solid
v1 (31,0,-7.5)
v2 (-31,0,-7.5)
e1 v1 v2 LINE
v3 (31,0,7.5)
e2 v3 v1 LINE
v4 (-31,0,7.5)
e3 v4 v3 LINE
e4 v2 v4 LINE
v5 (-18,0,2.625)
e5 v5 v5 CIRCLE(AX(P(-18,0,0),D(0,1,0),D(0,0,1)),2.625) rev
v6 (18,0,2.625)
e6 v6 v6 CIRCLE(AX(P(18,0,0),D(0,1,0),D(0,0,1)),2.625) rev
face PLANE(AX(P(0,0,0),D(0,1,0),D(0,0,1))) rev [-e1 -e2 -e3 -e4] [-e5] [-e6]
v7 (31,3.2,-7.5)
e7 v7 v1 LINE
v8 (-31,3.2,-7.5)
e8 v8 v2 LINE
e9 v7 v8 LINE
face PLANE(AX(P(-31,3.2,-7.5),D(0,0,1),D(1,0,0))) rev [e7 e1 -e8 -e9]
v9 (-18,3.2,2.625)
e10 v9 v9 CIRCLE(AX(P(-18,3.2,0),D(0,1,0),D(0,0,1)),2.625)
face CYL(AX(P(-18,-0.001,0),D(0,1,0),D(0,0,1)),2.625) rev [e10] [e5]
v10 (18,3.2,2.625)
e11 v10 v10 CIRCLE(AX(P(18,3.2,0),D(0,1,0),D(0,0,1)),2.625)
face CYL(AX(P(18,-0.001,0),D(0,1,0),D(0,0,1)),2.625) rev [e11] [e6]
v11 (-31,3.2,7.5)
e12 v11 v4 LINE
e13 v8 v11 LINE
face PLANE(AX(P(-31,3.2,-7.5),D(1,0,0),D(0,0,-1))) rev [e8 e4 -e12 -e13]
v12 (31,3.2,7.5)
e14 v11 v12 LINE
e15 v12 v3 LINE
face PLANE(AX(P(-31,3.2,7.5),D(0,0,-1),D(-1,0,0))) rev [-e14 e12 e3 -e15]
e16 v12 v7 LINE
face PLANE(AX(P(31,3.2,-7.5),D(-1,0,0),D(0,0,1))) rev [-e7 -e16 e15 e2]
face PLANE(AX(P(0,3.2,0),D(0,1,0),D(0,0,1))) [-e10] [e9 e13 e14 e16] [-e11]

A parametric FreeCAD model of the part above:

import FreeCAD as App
import Part
import Sketcher
from FreeCAD import Vector

doc = App.newDocument("Part")
body = doc.addObject("PartDesign::Body", "Body")

# Sketch on XZ plane
sketch1 = body.newObject("Sketcher::SketchObject", "Sketch")
sketch1.AttachmentSupport = (doc.getObject("XZ_Plane"), [""])
sketch1.MapMode = "FlatFace"
sketch1.addGeometry(Part.LineSegment(Vector(-31, -8, 0), Vector(-31, 8, 0)), False)
sketch1.addGeometry(Part.LineSegment(Vector(-31, 8, 0), Vector(31, 8, 0)), False)
sketch1.addGeometry(Part.LineSegment(Vector(31, 8, 0), Vector(31, -8, 0)), False)
sketch1.addGeometry(Part.LineSegment(Vector(31, -8, 0), Vector(-31, -8, 0)), False)
sketch1.addConstraint(Sketcher.Constraint("Coincident", 0, 2, 1, 1))
sketch1.addConstraint(Sketcher.Constraint("Coincident", 1, 2, 2, 1))
sketch1.addConstraint(Sketcher.Constraint("Coincident", 2, 2, 3, 1))
sketch1.addConstraint(Sketcher.Constraint("Coincident", 3, 2, 0, 1))
sketch1.addConstraint(Sketcher.Constraint("Vertical", 0))
sketch1.addConstraint(Sketcher.Constraint("Horizontal", 1))
sketch1.addConstraint(Sketcher.Constraint("Vertical", 2))
sketch1.addConstraint(Sketcher.Constraint("Horizontal", 3))
sketch1.addConstraint(Sketcher.Constraint("Symmetric", 0, 2, 2, 2, -1, 1))
sketch1.addConstraint(Sketcher.Constraint("DistanceX", 1, 1, 1, 2, 62.0))
sketch1.addConstraint(Sketcher.Constraint("DistanceY", 0, 1, 0, 2, 15.0))
pad1 = body.newObject("PartDesign::Pad", "Pad")
pad1.Profile = sketch1
pad1.Length = 3.2
pad1.Reversed = True

# Sketch on XZ plane
sketch2 = body.newObject("Sketcher::SketchObject", "Sketch001")
sketch2.AttachmentSupport = (doc.getObject("XZ_Plane"), [""])
sketch2.MapMode = "FlatFace"
sketch2.AttachmentOffset = App.Placement(Vector(0, 0, -3.2), App.Rotation())
sketch2.addGeometry(Part.Circle(Vector(-18, 0, 0), Vector(0, 0, 1), 2.6), False)
sketch2.addConstraint(Sketcher.Constraint("PointOnObject", 0, 3, -1))
sketch2.addConstraint(Sketcher.Constraint("Diameter", 0, 5.25))
sketch2.addConstraint(Sketcher.Constraint("DistanceX", 0, 3, -1, 1, 18.0))
pocket1 = body.newObject("PartDesign::Pocket", "Pocket")
pocket1.Profile = sketch2
pocket1.Type = "UpToFirst"
pocket1.Reversed = True

# Sketch on XZ plane
sketch3 = body.newObject("Sketcher::SketchObject", "Sketch002")
sketch3.AttachmentSupport = (doc.getObject("XZ_Plane"), [""])
sketch3.MapMode = "FlatFace"
sketch3.AttachmentOffset = App.Placement(Vector(0, 0, -3.2), App.Rotation())
sketch3.addGeometry(Part.Circle(Vector(18, 0, 0), Vector(0, 0, 1), 2.6), False)
sketch3.addConstraint(Sketcher.Constraint("PointOnObject", 0, 3, -1))
sketch3.addConstraint(Sketcher.Constraint("Diameter", 0, 5.25))
sketch3.addConstraint(Sketcher.Constraint("DistanceX", -1, 1, 0, 3, 18.0))
pocket2 = body.newObject("PartDesign::Pocket", "Pocket001")
pocket2.Profile = sketch3
pocket2.Type = "UpToFirst"
pocket2.Reversed = True

doc.recompute()
